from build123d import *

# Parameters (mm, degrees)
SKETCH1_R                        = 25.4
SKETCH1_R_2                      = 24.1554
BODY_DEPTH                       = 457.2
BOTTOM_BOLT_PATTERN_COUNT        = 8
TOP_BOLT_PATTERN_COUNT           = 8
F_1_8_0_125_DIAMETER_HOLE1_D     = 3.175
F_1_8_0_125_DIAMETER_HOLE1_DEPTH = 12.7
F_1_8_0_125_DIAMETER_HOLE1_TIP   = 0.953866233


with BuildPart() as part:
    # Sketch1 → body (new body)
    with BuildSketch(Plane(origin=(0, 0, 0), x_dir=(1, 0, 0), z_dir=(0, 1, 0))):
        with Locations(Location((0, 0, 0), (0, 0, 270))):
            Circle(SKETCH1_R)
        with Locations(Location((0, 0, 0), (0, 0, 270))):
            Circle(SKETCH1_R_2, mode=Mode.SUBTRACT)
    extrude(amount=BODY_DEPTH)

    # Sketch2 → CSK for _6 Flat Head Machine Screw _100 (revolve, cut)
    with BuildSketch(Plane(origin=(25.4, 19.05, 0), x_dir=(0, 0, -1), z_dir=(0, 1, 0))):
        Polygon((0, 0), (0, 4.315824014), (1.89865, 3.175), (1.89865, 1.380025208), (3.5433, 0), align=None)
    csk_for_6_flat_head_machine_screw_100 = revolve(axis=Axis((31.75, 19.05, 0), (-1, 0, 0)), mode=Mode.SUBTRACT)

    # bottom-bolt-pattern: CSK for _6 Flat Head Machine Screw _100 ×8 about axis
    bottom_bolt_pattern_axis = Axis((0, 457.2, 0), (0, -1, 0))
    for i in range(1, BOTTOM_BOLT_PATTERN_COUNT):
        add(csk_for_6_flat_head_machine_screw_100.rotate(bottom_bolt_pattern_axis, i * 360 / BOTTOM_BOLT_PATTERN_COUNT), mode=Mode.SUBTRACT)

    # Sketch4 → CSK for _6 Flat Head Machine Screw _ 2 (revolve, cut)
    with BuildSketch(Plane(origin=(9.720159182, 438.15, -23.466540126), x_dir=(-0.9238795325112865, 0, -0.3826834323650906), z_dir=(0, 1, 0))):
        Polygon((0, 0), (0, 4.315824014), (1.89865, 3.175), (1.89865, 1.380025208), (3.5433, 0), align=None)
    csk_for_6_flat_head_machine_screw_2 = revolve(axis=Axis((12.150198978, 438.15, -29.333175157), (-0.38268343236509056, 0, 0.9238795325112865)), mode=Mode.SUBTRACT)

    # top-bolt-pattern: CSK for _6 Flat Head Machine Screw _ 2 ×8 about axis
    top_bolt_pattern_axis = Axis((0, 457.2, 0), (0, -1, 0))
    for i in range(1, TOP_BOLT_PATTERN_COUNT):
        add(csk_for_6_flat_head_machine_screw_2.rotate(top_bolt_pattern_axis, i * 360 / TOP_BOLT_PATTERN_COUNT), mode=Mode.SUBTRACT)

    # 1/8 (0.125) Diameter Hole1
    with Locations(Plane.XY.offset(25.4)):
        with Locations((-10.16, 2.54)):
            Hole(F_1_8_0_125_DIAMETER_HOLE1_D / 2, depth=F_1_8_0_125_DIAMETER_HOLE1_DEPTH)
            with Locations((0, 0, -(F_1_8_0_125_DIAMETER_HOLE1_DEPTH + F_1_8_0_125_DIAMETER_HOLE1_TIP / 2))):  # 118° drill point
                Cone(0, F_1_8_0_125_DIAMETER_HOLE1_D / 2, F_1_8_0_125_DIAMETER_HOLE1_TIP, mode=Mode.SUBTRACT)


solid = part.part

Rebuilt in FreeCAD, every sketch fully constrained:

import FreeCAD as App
import Part
import Sketcher
from FreeCAD import Vector
Q = App.Units.Quantity


def add_polygon(sketch, points):
    """Adds a closed chain of lines whose ends are joined by coincident constraints."""
    first, n = sketch.GeometryCount, len(points)
    for a, b in zip(points, points[1:] + points[:1]):
        sketch.addGeometry(Part.LineSegment(App.Vector(*a, 0), App.Vector(*b, 0)), False)
    for i in range(n):
        sketch.addConstraint(Sketcher.Constraint("Coincident", first + i, 2, first + (i + 1) % n, 1))

doc = App.newDocument("Part")
body = doc.addObject("PartDesign::Body", "Body")

# Sketch on XZ plane
sketch1 = body.newObject("Sketcher::SketchObject", "Sketch")
sketch1.AttachmentSupport = (doc.getObject("XZ_Plane"), [""])
sketch1.MapMode = "FlatFace"
sketch1.addGeometry([
    Part.Circle(Vector(0, 0, 0), Vector(0, 0, 1), 25),
    Part.Circle(Vector(0, 0, 0), Vector(0, 0, 1), 24),
], False)
sketch1.addConstraint([
    Sketcher.Constraint("Coincident", 0, 3, -1, 1),
    Sketcher.Constraint("Coincident", 1, 3, -1, 1),
    Sketcher.Constraint("Diameter", 0, Q("2 in")),
    Sketcher.Constraint("Diameter", 1, Q("1.902 in")),
])
pad1 = body.newObject("PartDesign::Pad", "Pad")
pad1.Profile = sketch1
pad1.Length = Q("18 in")
pad1.Reversed = True

# Sketch on XZ plane
sketch2 = body.newObject("Sketcher::SketchObject", "Sketch001")
sketch2.AttachmentSupport = (doc.getObject("XZ_Plane"), [""])
sketch2.MapMode = "FlatFace"
sketch2.AttachmentOffset = App.Placement(Vector(0, 0, -0.75 * 25.4), App.Rotation())
add_polygon(sketch2, [(21.1, 0), (25.4, 0), (25.4, -3.5), (24, -1.9), (22.2, -1.9)])  # lines 0-4
sketch2.addConstraint([
    Sketcher.Constraint("Horizontal", 0),
    Sketcher.Constraint("Vertical", 1),
    Sketcher.Constraint("Horizontal", 3),
    Sketcher.Constraint("PointOnObject", 0, 2, -1),
    Sketcher.Constraint("DistanceX", -1, 1, 0, 2, Q("1 in")),
    Sketcher.Constraint("Angle", 2, Q("130 deg")),
    Sketcher.Constraint("Angle", 4, Q("121 deg")),
    Sketcher.Constraint("DistanceY", 1, 2, 1, 1, Q("0.1395 in")),
    Sketcher.Constraint("DistanceX", -1, 1, 3, 2, Q("0.875 in")),
    Sketcher.Constraint("DistanceX", 4, 2, 2, 2, Q("2.935799 mm")),
])
groove = body.newObject("PartDesign::Groove", "Groove")
groove.Profile = sketch2
groove.ReferenceAxis = (sketch2, ["H_Axis"])
groove.Angle = 360
doc.recompute()

polarpattern = body.newObject("PartDesign::PolarPattern", "PolarPattern")
polarpattern.Originals = [groove]
polarpattern.Axis = (doc.getObject("Y_Axis"), [""])
polarpattern.Angle = 360
polarpattern.Occurrences = 8
body.Tip = polarpattern

# Sketch on XZ plane
sketch3 = body.newObject("Sketcher::SketchObject", "Sketch002")
sketch3.AttachmentSupport = (doc.getObject("XZ_Plane"), [""])
sketch3.MapMode = "FlatFace"
sketch3.AttachmentOffset = App.Placement(Vector(0, 0, -17.25 * 25.4), App.Rotation())
add_polygon(sketch3, [(8.1, -19.5), (9.7, -23.5), (6.4, -24.8), (7.4, -22.9), (6.8, -21.3)])  # lines 0-4
sketch3.addGeometry(Part.LineSegment(Vector(9.7, -23.5, 0), Vector(8.1, -19.5, 0)), True)  # axis
sketch3.addConstraint([
    Sketcher.Constraint("Coincident", 5, 1, 0, 2),
    Sketcher.Constraint("Coincident", 5, 2, 4, 2),
    Sketcher.Constraint("Perpendicular", 0, 1),
    Sketcher.Constraint("Perpendicular", 1, 3),
    Sketcher.Constraint("Angle", 0, Q("-67.5 deg")),
    Sketcher.Constraint("Angle", 2, Q("62.5 deg")),
    Sketcher.Constraint("Angle", 4, Q("53.5 deg")),
    Sketcher.Constraint("DistanceY", 3, 2, -1, 1, Q("0.8370002 in")),
    Sketcher.Constraint("Distance", 1, Q("0.1395 in")),
    Sketcher.Constraint("DistanceY", 0, 2, 4, 2, Q("3.987301 mm")),
    Sketcher.Constraint("Distance", 2, Q("2.146938 mm")),
    Sketcher.Constraint("DistanceX", -1, 1, 0, 2, Q("9.720159 mm")),
])
groove2 = body.newObject("PartDesign::Groove", "Groove001")
groove2.Profile = sketch3
groove2.ReferenceAxis = (sketch3, ["Axis0"])
groove2.Angle = 360
doc.recompute()

polarpattern2 = body.newObject("PartDesign::PolarPattern", "PolarPattern001")
polarpattern2.Originals = [groove2]
polarpattern2.Axis = (doc.getObject("Y_Axis"), [""])
polarpattern2.Angle = 360
polarpattern2.Occurrences = 8
body.Tip = polarpattern2

# Sketch on XY plane
sketch4 = body.newObject("Sketcher::SketchObject", "Sketch003")
sketch4.AttachmentSupport = (doc.getObject("XY_Plane"), [""])
sketch4.MapMode = "FlatFace"
sketch4.AttachmentOffset = App.Placement(Vector(0, 0, 1 * 25.4), App.Rotation())
sketch4.addGeometry(Part.Circle(Vector(-10.2, 2.5, 0), Vector(0, 0, 1), 1.6), False)
sketch4.addConstraint([
    Sketcher.Constraint("Diameter", 0, Q("0.125 in")),
    Sketcher.Constraint("DistanceX", 0, 3, -1, 1, Q("0.4 in")),
    Sketcher.Constraint("DistanceY", -1, 1, 0, 3, Q("0.1 in")),
])
doc.recompute()
hole = body.newObject("PartDesign::Hole", "Hole")
hole.Profile = sketch4
hole.ThreadType = "None"
hole.Diameter = Q("0.125 in")
hole.DepthType = "Dimension"
hole.Depth = Q("0.5 in")
hole.DrillPoint = "Angled"
hole.DrillPointAngle = 118

doc.recompute()
